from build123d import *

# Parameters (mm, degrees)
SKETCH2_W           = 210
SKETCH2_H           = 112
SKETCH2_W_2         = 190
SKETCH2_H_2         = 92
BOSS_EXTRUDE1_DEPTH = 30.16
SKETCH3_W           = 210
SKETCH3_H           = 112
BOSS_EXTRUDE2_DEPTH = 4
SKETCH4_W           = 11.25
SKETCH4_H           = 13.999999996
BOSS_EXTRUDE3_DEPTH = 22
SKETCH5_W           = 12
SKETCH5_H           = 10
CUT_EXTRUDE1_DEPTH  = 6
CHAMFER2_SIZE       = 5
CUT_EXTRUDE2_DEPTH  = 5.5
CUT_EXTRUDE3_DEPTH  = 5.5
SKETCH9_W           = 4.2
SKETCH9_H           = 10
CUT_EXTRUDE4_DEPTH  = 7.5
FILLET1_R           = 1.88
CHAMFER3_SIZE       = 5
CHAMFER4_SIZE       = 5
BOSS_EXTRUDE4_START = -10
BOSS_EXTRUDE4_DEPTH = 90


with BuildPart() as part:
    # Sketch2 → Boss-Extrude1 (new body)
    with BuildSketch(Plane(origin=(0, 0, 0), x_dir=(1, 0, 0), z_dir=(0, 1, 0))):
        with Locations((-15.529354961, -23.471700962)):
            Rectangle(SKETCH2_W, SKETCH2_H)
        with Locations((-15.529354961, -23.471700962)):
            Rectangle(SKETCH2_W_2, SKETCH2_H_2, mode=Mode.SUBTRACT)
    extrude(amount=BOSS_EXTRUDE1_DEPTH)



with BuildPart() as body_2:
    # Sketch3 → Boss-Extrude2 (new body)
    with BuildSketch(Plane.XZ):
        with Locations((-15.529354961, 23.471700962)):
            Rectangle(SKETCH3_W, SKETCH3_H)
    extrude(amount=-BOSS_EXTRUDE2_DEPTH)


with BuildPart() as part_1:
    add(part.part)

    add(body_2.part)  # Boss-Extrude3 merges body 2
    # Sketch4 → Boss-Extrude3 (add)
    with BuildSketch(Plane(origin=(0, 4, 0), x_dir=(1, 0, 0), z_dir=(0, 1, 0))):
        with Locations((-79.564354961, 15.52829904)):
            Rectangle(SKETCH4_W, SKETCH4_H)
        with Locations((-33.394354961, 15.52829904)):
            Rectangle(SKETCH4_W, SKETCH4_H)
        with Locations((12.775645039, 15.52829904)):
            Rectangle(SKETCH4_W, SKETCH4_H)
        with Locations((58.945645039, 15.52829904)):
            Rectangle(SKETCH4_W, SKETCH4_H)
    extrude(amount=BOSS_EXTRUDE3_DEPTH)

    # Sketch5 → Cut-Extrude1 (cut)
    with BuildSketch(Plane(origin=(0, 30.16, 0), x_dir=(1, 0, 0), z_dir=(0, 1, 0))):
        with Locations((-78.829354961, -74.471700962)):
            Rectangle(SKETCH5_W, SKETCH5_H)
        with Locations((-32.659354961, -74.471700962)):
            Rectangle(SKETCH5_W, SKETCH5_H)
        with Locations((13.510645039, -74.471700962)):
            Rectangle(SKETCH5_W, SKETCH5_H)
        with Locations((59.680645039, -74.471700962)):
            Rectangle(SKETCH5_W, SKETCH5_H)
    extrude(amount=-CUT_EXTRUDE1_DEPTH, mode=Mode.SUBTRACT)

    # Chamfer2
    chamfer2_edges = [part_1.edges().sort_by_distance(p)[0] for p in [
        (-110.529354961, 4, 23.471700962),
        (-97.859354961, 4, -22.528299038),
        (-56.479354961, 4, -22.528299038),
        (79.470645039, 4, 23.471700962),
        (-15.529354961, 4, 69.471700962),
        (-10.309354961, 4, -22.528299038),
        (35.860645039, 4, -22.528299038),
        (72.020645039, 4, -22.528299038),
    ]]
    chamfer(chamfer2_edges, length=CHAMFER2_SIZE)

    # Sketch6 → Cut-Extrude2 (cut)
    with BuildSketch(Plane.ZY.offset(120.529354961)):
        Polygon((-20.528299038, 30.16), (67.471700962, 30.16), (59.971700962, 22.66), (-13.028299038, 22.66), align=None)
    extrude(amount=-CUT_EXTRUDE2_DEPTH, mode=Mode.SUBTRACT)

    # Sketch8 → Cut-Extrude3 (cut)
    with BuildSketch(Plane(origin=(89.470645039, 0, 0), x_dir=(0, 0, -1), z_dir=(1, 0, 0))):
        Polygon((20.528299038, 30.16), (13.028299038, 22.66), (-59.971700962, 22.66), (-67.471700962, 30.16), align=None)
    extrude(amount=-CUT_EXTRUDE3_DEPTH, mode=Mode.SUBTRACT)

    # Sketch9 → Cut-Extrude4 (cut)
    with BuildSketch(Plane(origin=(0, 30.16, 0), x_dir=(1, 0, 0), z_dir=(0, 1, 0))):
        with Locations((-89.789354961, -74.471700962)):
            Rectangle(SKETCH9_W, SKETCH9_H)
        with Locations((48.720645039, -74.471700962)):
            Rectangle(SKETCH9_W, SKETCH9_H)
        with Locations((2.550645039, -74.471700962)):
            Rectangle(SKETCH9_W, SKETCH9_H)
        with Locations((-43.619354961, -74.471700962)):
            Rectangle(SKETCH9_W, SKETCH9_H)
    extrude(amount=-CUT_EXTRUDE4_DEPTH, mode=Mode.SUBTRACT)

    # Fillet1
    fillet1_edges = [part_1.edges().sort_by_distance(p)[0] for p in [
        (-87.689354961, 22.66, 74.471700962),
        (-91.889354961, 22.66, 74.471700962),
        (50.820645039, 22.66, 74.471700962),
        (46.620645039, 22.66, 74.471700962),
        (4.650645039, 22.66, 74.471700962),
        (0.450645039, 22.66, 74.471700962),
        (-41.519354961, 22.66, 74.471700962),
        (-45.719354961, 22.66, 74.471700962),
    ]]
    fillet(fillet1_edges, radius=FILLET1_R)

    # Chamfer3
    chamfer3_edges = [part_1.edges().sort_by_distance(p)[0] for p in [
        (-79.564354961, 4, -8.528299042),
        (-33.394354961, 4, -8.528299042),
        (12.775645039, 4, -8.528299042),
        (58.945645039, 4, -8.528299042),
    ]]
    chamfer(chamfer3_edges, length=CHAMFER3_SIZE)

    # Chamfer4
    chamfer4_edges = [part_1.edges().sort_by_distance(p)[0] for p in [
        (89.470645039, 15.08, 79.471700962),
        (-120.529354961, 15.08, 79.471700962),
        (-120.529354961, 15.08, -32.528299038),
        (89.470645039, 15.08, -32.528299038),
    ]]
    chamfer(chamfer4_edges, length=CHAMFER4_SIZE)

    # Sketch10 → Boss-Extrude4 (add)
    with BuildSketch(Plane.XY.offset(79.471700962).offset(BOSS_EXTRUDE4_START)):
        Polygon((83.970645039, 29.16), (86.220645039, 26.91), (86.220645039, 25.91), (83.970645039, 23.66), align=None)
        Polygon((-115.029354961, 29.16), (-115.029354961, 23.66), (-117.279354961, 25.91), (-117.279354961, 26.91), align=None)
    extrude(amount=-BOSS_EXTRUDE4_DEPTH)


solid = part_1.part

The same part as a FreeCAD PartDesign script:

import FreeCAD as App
import Part
import Sketcher

V = App.Vector
Q = App.Units.Quantity


def edges_at(feature, points):
    """Names of the edges that pass closest to the given points."""
    edges = feature.Shape.Edges
    near = lambda p: min(range(len(edges)), key=lambda i: edges[i].distToShape(Part.Vertex(*p))[0])
    return sorted({f"Edge{near(p) + 1}" for p in points})


def add_polygon(sketch, points):
    """Adds a closed chain of lines whose ends are joined by coincident constraints."""
    first, n = sketch.GeometryCount, len(points)
    for a, b in zip(points, points[1:] + points[:1]):
        sketch.addGeometry(Part.LineSegment(App.Vector(*a, 0), App.Vector(*b, 0)), False)
    for i in range(n):
        sketch.addConstraint(Sketcher.Constraint("Coincident", first + i, 2, first + (i + 1) % n, 1))

doc = App.newDocument("Part")
body = doc.addObject("PartDesign::Body", "Body")

sketch1 = doc.addObject("Sketcher::SketchObject", "Sketch")
body.addObject(sketch1)
sketch1.AttachmentSupport = (doc.XZ_Plane, [""])
sketch1.MapMode = "FlatFace"
add_polygon(sketch1, [(-120.529355, -32.528299), (-120.529355, 79.471701), (89.470645, 79.471701), (89.470645, -32.528299)])
add_polygon(sketch1, [(79.470645, 69.471701), (-110.529355, 69.471701), (-110.529355, -22.528299), (79.470645, -22.528299)])
sketch1.addConstraint(Sketcher.Constraint("Vertical", 0))
sketch1.addConstraint(Sketcher.Constraint("Horizontal", 1))
sketch1.addConstraint(Sketcher.Constraint("Vertical", 2))
sketch1.addConstraint(Sketcher.Constraint("Horizontal", 3))
sketch1.addConstraint(Sketcher.Constraint("Horizontal", 4))
sketch1.addConstraint(Sketcher.Constraint("Vertical", 5))
sketch1.addConstraint(Sketcher.Constraint("Horizontal", 6))
sketch1.addConstraint(Sketcher.Constraint("Vertical", 7))
sketch1.addConstraint(Sketcher.Constraint("DistanceX", 1, 1, 1, 2, Q("210 mm")))
sketch1.addConstraint(Sketcher.Constraint("DistanceX", 4, 2, 4, 1, Q("190 mm")))
sketch1.addConstraint(Sketcher.Constraint("DistanceY", 0, 1, 0, 2, Q("112 mm")))
sketch1.addConstraint(Sketcher.Constraint("DistanceY", 5, 2, 5, 1, Q("92 mm")))
sketch1.addConstraint(Sketcher.Constraint("DistanceX", 0, 2, 4, 2, Q("10 mm")))
sketch1.addConstraint(Sketcher.Constraint("DistanceY", 4, 2, 0, 2, Q("10 mm")))
sketch1.addConstraint(Sketcher.Constraint("DistanceY", -1, 1, 0, 2, Q("79.471701 mm")))
sketch1.addConstraint(Sketcher.Constraint("DistanceX", 0, 2, -1, 1, Q("120.529355 mm")))
pad1 = doc.addObject("PartDesign::Pad", "Pad")
body.addObject(pad1)
pad1.Profile = sketch1
pad1.Length = 30.16
pad1.Reversed = True
body2 = doc.addObject("PartDesign::Body", "Body001")

sketch2 = doc.addObject("Sketcher::SketchObject", "Sketch001")
body2.addObject(sketch2)
sketch2.AttachmentSupport = (doc.getObject("XZ_Plane001"), [""])
sketch2.MapMode = "FlatFace"
add_polygon(sketch2, [(-120.529355, 79.471701), (-120.529355, -32.528299), (89.470645, -32.528299), (89.470645, 79.471701)])
sketch2.addConstraint(Sketcher.Constraint("Vertical", 0))
sketch2.addConstraint(Sketcher.Constraint("Horizontal", 1))
sketch2.addConstraint(Sketcher.Constraint("Vertical", 2))
sketch2.addConstraint(Sketcher.Constraint("Horizontal", 3))
sketch2.addConstraint(Sketcher.Constraint("DistanceX", 1, 1, 1, 2, Q("210 mm")))
sketch2.addConstraint(Sketcher.Constraint("DistanceY", 0, 2, 0, 1, Q("112 mm")))
sketch2.addConstraint(Sketcher.Constraint("DistanceY", 0, 2, -1, 1, Q("32.528299 mm")))
sketch2.addConstraint(Sketcher.Constraint("DistanceX", 0, 2, -1, 1, Q("120.529355 mm")))
pad2 = doc.addObject("PartDesign::Pad", "Pad001")
body2.addObject(pad2)
pad2.Profile = sketch2
pad2.Length = 4
pad2.Reversed = True
doc.recompute()

boolean = doc.addObject("PartDesign::Boolean", "Boolean")
body.addObject(boolean)
boolean.Type = "Fuse"
boolean.addObjects([body2])

sketch3 = doc.addObject("Sketcher::SketchObject", "Sketch002")
body.addObject(sketch3)
sketch3.AttachmentSupport = (doc.XZ_Plane, [""])
sketch3.MapMode = "FlatFace"
sketch3.AttachmentOffset = App.Placement(V(0, 0, -4), App.Rotation())
add_polygon(sketch3, [(-85.189355, -22.528299), (-85.189355, -8.528299), (-73.939355, -8.528299), (-73.939355, -22.528299)])
add_polygon(sketch3, [(-39.019355, -22.528299), (-39.019355, -8.528299), (-27.769355, -8.528299), (-27.769355, -22.528299)])
add_polygon(sketch3, [(7.150645, -22.528299), (7.150645, -8.528299), (18.400645, -8.528299), (18.400645, -22.528299)])
add_polygon(sketch3, [(53.320645, -22.528299), (53.320645, -8.528299), (64.570645, -8.528299), (64.570645, -22.528299)])
sketch3.addConstraint(Sketcher.Constraint("Vertical", 0))
sketch3.addConstraint(Sketcher.Constraint("Horizontal", 1))
sketch3.addConstraint(Sketcher.Constraint("Vertical", 2))
sketch3.addConstraint(Sketcher.Constraint("Horizontal", 3))
sketch3.addConstraint(Sketcher.Constraint("Vertical", 4))
sketch3.addConstraint(Sketcher.Constraint("Horizontal", 5))
sketch3.addConstraint(Sketcher.Constraint("Vertical", 6))
sketch3.addConstraint(Sketcher.Constraint("Horizontal", 7))
sketch3.addConstraint(Sketcher.Constraint("Vertical", 8))
sketch3.addConstraint(Sketcher.Constraint("Horizontal", 9))
sketch3.addConstraint(Sketcher.Constraint("Vertical", 10))
sketch3.addConstraint(Sketcher.Constraint("Horizontal", 11))
sketch3.addConstraint(Sketcher.Constraint("Vertical", 12))
sketch3.addConstraint(Sketcher.Constraint("Horizontal", 13))
sketch3.addConstraint(Sketcher.Constraint("Vertical", 14))
sketch3.addConstraint(Sketcher.Constraint("Horizontal", 15))
sketch3.addConstraint(Sketcher.Constraint("Horizontal", 1, 2, 4, 2))
sketch3.addConstraint(Sketcher.Constraint("Horizontal", 3, 2, 6, 2))
sketch3.addConstraint(Sketcher.Constraint("Horizontal", 5, 2, 8, 2))
sketch3.addConstraint(Sketcher.Constraint("Horizontal", 7, 2, 10, 2))
sketch3.addConstraint(Sketcher.Constraint("Horizontal", 9, 2, 12, 2))
sketch3.addConstraint(Sketcher.Constraint("Horizontal", 11, 2, 14, 2))
sketch3.addConstraint(Sketcher.Constraint("Equal", 3, 5))
sketch3.addConstraint(Sketcher.Constraint("Equal", 7, 9))
sketch3.addConstraint(Sketcher.Constraint("Equal", 11, 13))
sketch3.addConstraint(Sketcher.Constraint("DistanceY", 0, 1, 0, 2, Q("14 mm")))
sketch3.addConstraint(Sketcher.Constraint("DistanceX", 1, 1, 1, 2, Q("11.25 mm")))
sketch3.addConstraint(Sketcher.Constraint("DistanceX", 1, 2, 4, 2, Q("34.92 mm")))
sketch3.addConstraint(Sketcher.Constraint("DistanceX", 5, 2, 8, 2, Q("34.92 mm")))
sketch3.addConstraint(Sketcher.Constraint("DistanceX", 9, 2, 12, 2, Q("34.92 mm")))
sketch3.addConstraint(Sketcher.Constraint("DistanceY", 0, 2, -1, 1, Q("8.528299 mm")))
sketch3.addConstraint(Sketcher.Constraint("DistanceX", 0, 2, -1, 1, Q("85.189355 mm")))
pad3 = doc.addObject("PartDesign::Pad", "Pad002")
body.addObject(pad3)
pad3.Profile = sketch3
pad3.Length = 22
pad3.Reversed = True

sketch4 = doc.addObject("Sketcher::SketchObject", "Sketch003")
body.addObject(sketch4)
sketch4.AttachmentSupport = (doc.XZ_Plane, [""])
sketch4.MapMode = "FlatFace"
sketch4.AttachmentOffset = App.Placement(V(0, 0, -30.16), App.Rotation())
add_polygon(sketch4, [(-84.829355, 69.471701), (-84.829355, 79.471701), (-72.829355, 79.471701), (-72.829355, 69.471701)])
add_polygon(sketch4, [(-38.659355, 69.471701), (-38.659355, 79.471701), (-26.659355, 79.471701), (-26.659355, 69.471701)])
add_polygon(sketch4, [(7.510645, 69.471701), (7.510645, 79.471701), (19.510645, 79.471701), (19.510645, 69.471701)])
add_polygon(sketch4, [(53.680645, 69.471701), (53.680645, 79.471701), (65.680645, 79.471701), (65.680645, 69.471701)])
sketch4.addConstraint(Sketcher.Constraint("Vertical", 0))
sketch4.addConstraint(Sketcher.Constraint("Horizontal", 1))
sketch4.addConstraint(Sketcher.Constraint("Vertical", 2))
sketch4.addConstraint(Sketcher.Constraint("Horizontal", 3))
sketch4.addConstraint(Sketcher.Constraint("Vertical", 4))
sketch4.addConstraint(Sketcher.Constraint("Horizontal", 5))
sketch4.addConstraint(Sketcher.Constraint("Vertical", 6))
sketch4.addConstraint(Sketcher.Constraint("Horizontal", 7))
sketch4.addConstraint(Sketcher.Constraint("Vertical", 8))
sketch4.addConstraint(Sketcher.Constraint("Horizontal", 9))
sketch4.addConstraint(Sketcher.Constraint("Vertical", 10))
sketch4.addConstraint(Sketcher.Constraint("Horizontal", 11))
sketch4.addConstraint(Sketcher.Constraint("Vertical", 12))
sketch4.addConstraint(Sketcher.Constraint("Horizontal", 13))
sketch4.addConstraint(Sketcher.Constraint("Vertical", 14))
sketch4.addConstraint(Sketcher.Constraint("Horizontal", 15))
sketch4.addConstraint(Sketcher.Constraint("Horizontal", 1, 2, 4, 2))
sketch4.addConstraint(Sketcher.Constraint("Horizontal", 3, 2, 6, 2))
sketch4.addConstraint(Sketcher.Constraint("Horizontal", 5, 2, 8, 2))
sketch4.addConstraint(Sketcher.Constraint("Horizontal", 7, 2, 10, 2))
sketch4.addConstraint(Sketcher.Constraint("Horizontal", 9, 2, 12, 2))
sketch4.addConstraint(Sketcher.Constraint("Horizontal", 11, 2, 14, 2))
sketch4.addConstraint(Sketcher.Constraint("Equal", 3, 5))
sketch4.addConstraint(Sketcher.Constraint("Equal", 7, 9))
sketch4.addConstraint(Sketcher.Constraint("Equal", 11, 13))
sketch4.addConstraint(Sketcher.Constraint("DistanceX", 1, 1, 1, 2, Q("12 mm")))
sketch4.addConstraint(Sketcher.Constraint("DistanceY", 0, 1, 0, 2, Q("10 mm")))
sketch4.addConstraint(Sketcher.Constraint("DistanceX", 1, 2, 4, 2, Q("34.17 mm")))
sketch4.addConstraint(Sketcher.Constraint("DistanceX", 5, 2, 8, 2, Q("34.17 mm")))
sketch4.addConstraint(Sketcher.Constraint("DistanceX", 9, 2, 12, 2, Q("34.17 mm")))
sketch4.addConstraint(Sketcher.Constraint("DistanceY", -1, 1, 0, 2, Q("79.471701 mm")))
sketch4.addConstraint(Sketcher.Constraint("DistanceX", 0, 2, -1, 1, Q("84.829355 mm")))
pocket1 = doc.addObject("PartDesign::Pocket", "Pocket")
body.addObject(pocket1)
pocket1.Profile = sketch4
pocket1.Length = 6
pocket1.Reversed = True
doc.recompute()

chamfer = doc.addObject("PartDesign::Chamfer", "Chamfer")
body.addObject(chamfer)
chamfer.Base = (pocket1, edges_at(pocket1, [
    (-110.529, 4, 23.472),
    (-97.859, 4, -22.528),
    (-56.479, 4, -22.528),
    (79.471, 4, 23.472),
    (-15.529, 4, 69.472),
    (-10.309, 4, -22.528),
    (35.861, 4, -22.528),
    (72.021, 4, -22.528),
]))
chamfer.Size = 5

sketch5 = doc.addObject("Sketcher::SketchObject", "Sketch004")
body.addObject(sketch5)
sketch5.AttachmentSupport = (doc.YZ_Plane, [""])
sketch5.MapMode = "FlatFace"
sketch5.AttachmentOffset = App.Placement(V(0, 0, -120.529355), App.Rotation())
add_polygon(sketch5, [(30.16, 67.471701), (30.16, -20.528299), (22.66, -13.028299), (22.66, 59.971701)])
sketch5.addConstraint(Sketcher.Constraint("Vertical", 0))
sketch5.addConstraint(Sketcher.Constraint("Vertical", 2))
sketch5.addConstraint(Sketcher.Constraint("Perpendicular", 1, 3))
sketch5.addConstraint(Sketcher.Constraint("Equal", 1, 3))
sketch5.addConstraint(Sketcher.Constraint("DistanceY", 0, 2, 0, 1, Q("88 mm")))
sketch5.addConstraint(Sketcher.Constraint("DistanceY", 2, 1, 2, 2, Q("73 mm")))
sketch5.addConstraint(Sketcher.Constraint("DistanceX", -1, 1, 0, 2, Q("30.16 mm")))
sketch5.addConstraint(Sketcher.Constraint("DistanceY", 0, 2, -1, 1, Q("20.528299 mm")))
pocket2 = doc.addObject("PartDesign::Pocket", "Pocket001")
body.addObject(pocket2)
pocket2.Profile = sketch5
pocket2.Length = 5.5
pocket2.Reversed = True

sketch6 = doc.addObject("Sketcher::SketchObject", "Sketch005")
body.addObject(sketch6)
sketch6.AttachmentSupport = (doc.YZ_Plane, [""])
sketch6.MapMode = "FlatFace"
sketch6.AttachmentOffset = App.Placement(V(0, 0, 89.470645), App.Rotation())
add_polygon(sketch6, [(22.66, -13.028299), (30.16, -20.528299), (30.16, 67.471701), (22.66, 59.971701)])
sketch6.addConstraint(Sketcher.Constraint("Vertical", 1))
sketch6.addConstraint(Sketcher.Constraint("Vertical", 3))
sketch6.addConstraint(Sketcher.Constraint("Perpendicular", 0, 2))
sketch6.addConstraint(Sketcher.Constraint("Equal", 0, 2))
sketch6.addConstraint(Sketcher.Constraint("DistanceY", 1, 1, 1, 2, Q("88 mm")))
sketch6.addConstraint(Sketcher.Constraint("DistanceY", 3, 2, 3, 1, Q("73 mm")))
sketch6.addConstraint(Sketcher.Constraint("DistanceX", -1, 1, 0, 2, Q("30.16 mm")))
sketch6.addConstraint(Sketcher.Constraint("DistanceY", 0, 2, -1, 1, Q("20.528299 mm")))
pocket3 = doc.addObject("PartDesign::Pocket", "Pocket002")
body.addObject(pocket3)
pocket3.Profile = sketch6
pocket3.Length = 5.5

sketch7 = doc.addObject("Sketcher::SketchObject", "Sketch006")
body.addObject(sketch7)
sketch7.AttachmentSupport = (doc.XZ_Plane, [""])
sketch7.MapMode = "FlatFace"
sketch7.AttachmentOffset = App.Placement(V(0, 0, -30.16), App.Rotation())
add_polygon(sketch7, [(-91.889355, 69.471701), (-91.889355, 79.471701), (-87.689355, 79.471701), (-87.689355, 69.471701)])
add_polygon(sketch7, [(46.620645, 69.471701), (46.620645, 79.471701), (50.820645, 79.471701), (50.820645, 69.471701)])
add_polygon(sketch7, [(0.450645, 69.471701), (0.450645, 79.471701), (4.650645, 79.471701), (4.650645, 69.471701)])
add_polygon(sketch7, [(-45.719355, 69.471701), (-45.719355, 79.471701), (-41.519355, 79.471701), (-41.519355, 69.471701)])
sketch7.addConstraint(Sketcher.Constraint("Vertical", 0))
sketch7.addConstraint(Sketcher.Constraint("Horizontal", 1))
sketch7.addConstraint(Sketcher.Constraint("Vertical", 2))
sketch7.addConstraint(Sketcher.Constraint("Horizontal", 3))
sketch7.addConstraint(Sketcher.Constraint("Vertical", 4))
sketch7.addConstraint(Sketcher.Constraint("Horizontal", 5))
sketch7.addConstraint(Sketcher.Constraint("Vertical", 6))
sketch7.addConstraint(Sketcher.Constraint("Horizontal", 7))
sketch7.addConstraint(Sketcher.Constraint("Vertical", 8))
sketch7.addConstraint(Sketcher.Constraint("Horizontal", 9))
sketch7.addConstraint(Sketcher.Constraint("Vertical", 10))
sketch7.addConstraint(Sketcher.Constraint("Horizontal", 11))
sketch7.addConstraint(Sketcher.Constraint("Vertical", 12))
sketch7.addConstraint(Sketcher.Constraint("Horizontal", 13))
sketch7.addConstraint(Sketcher.Constraint("Vertical", 14))
sketch7.addConstraint(Sketcher.Constraint("Horizontal", 15))
sketch7.addConstraint(Sketcher.Constraint("Horizontal", 1, 2, 4, 2))
sketch7.addConstraint(Sketcher.Constraint("Horizontal", 3, 2, 6, 2))
sketch7.addConstraint(Sketcher.Constraint("Horizontal", 5, 2, 8, 2))
sketch7.addConstraint(Sketcher.Constraint("Horizontal", 7, 2, 10, 2))
sketch7.addConstraint(Sketcher.Constraint("Horizontal", 9, 2, 12, 2))
sketch7.addConstraint(Sketcher.Constraint("Horizontal", 11, 2, 14, 2))
sketch7.addConstraint(Sketcher.Constraint("Equal", 3, 5))
sketch7.addConstraint(Sketcher.Constraint("Equal", 7, 9))
sketch7.addConstraint(Sketcher.Constraint("Equal", 11, 13))
sketch7.addConstraint(Sketcher.Constraint("DistanceY", 0, 1, 0, 2, Q("10 mm")))
sketch7.addConstraint(Sketcher.Constraint("DistanceX", 1, 1, 1, 2, Q("4.2 mm")))
sketch7.addConstraint(Sketcher.Constraint("DistanceX", 1, 2, 4, 2, Q("134.31 mm")))
sketch7.addConstraint(Sketcher.Constraint("DistanceX", 8, 2, 4, 2, Q("46.17 mm")))
sketch7.addConstraint(Sketcher.Constraint("DistanceX", 1, 2, 12, 2, Q("41.97 mm")))
sketch7.addConstraint(Sketcher.Constraint("DistanceY", -1, 1, 0, 2, Q("79.471701 mm")))
sketch7.addConstraint(Sketcher.Constraint("DistanceX", 0, 2, -1, 1, Q("91.889355 mm")))
pocket4 = doc.addObject("PartDesign::Pocket", "Pocket003")
body.addObject(pocket4)
pocket4.Profile = sketch7
pocket4.Length = 7.5
pocket4.Reversed = True
doc.recompute()

fillet = doc.addObject("PartDesign::Fillet", "Fillet")
body.addObject(fillet)
fillet.Base = (pocket4, edges_at(pocket4, [
    (-87.689, 22.66, 74.472),
    (-91.889, 22.66, 74.472),
    (50.821, 22.66, 74.472),
    (46.621, 22.66, 74.472),
    (4.651, 22.66, 74.472),
    (0.451, 22.66, 74.472),
    (-41.519, 22.66, 74.472),
    (-45.719, 22.66, 74.472),
]))
fillet.Radius = 1.88
doc.recompute()

chamfer2 = doc.addObject("PartDesign::Chamfer", "Chamfer001")
body.addObject(chamfer2)
chamfer2.Base = (fillet, edges_at(fillet, [
    (-79.564, 4, -8.528),
    (-33.394, 4, -8.528),
    (12.776, 4, -8.528),
    (58.946, 4, -8.528),
]))
chamfer2.Size = 5
doc.recompute()

chamfer3 = doc.addObject("PartDesign::Chamfer", "Chamfer002")
body.addObject(chamfer3)
chamfer3.Base = (chamfer2, edges_at(chamfer2, [
    (89.471, 15.08, 79.472),
    (-120.529, 15.08, 79.472),
    (-120.529, 15.08, -32.528),
    (89.471, 15.08, -32.528),
]))
chamfer3.Size = 5

sketch8 = doc.addObject("Sketcher::SketchObject", "Sketch007")
body.addObject(sketch8)
sketch8.AttachmentSupport = (doc.XY_Plane, [""])
sketch8.MapMode = "FlatFace"
sketch8.AttachmentOffset = App.Placement(V(0, 0, 69.471701), App.Rotation())
add_polygon(sketch8, [(86.220645, 26.91), (83.970645, 29.16), (83.970645, 23.66), (86.220645, 25.91)])
add_polygon(sketch8, [(-115.029355, 23.66), (-115.029355, 29.16), (-117.279355, 26.91), (-117.279355, 25.91)])
sketch8.addConstraint(Sketcher.Constraint("Vertical", 1))
sketch8.addConstraint(Sketcher.Constraint("Vertical", 3))
sketch8.addConstraint(Sketcher.Constraint("Vertical", 4))
sketch8.addConstraint(Sketcher.Constraint("Vertical", 6))
sketch8.addConstraint(Sketcher.Constraint("Perpendicular", 0, 2))
sketch8.addConstraint(Sketcher.Constraint("Parallel", 2, 5))
sketch8.addConstraint(Sketcher.Constraint("Perpendicular", 5, 7))
sketch8.addConstraint(Sketcher.Constraint("Horizontal", 0, 2, 4, 2))
sketch8.addConstraint(Sketcher.Constraint("Horizontal", 3, 2, 5, 2))
sketch8.addConstraint(Sketcher.Constraint("Horizontal", 2, 2, 6, 2))
sketch8.addConstraint(Sketcher.Constraint("Horizontal", 1, 2, 7, 2))
sketch8.addConstraint(Sketcher.Constraint("DistanceY", 3, 1, 3, 2, Q("1 mm")))
sketch8.addConstraint(Sketcher.Constraint("DistanceY", 1, 2, 1, 1, Q("5.5 mm")))
sketch8.addConstraint(Sketcher.Constraint("DistanceX", 4, 2, 0, 2, Q("199 mm")))
sketch8.addConstraint(Sketcher.Constraint("DistanceY", -1, 1, 0, 2, Q("29.16 mm")))
sketch8.addConstraint(Sketcher.Constraint("DistanceX", -1, 1, 0, 2, Q("83.970645 mm")))
pad4 = doc.addObject("PartDesign::Pad", "Pad003")
body.addObject(pad4)
pad4.Profile = sketch8
pad4.Length = 90
pad4.Reversed = True

doc.recompute()
